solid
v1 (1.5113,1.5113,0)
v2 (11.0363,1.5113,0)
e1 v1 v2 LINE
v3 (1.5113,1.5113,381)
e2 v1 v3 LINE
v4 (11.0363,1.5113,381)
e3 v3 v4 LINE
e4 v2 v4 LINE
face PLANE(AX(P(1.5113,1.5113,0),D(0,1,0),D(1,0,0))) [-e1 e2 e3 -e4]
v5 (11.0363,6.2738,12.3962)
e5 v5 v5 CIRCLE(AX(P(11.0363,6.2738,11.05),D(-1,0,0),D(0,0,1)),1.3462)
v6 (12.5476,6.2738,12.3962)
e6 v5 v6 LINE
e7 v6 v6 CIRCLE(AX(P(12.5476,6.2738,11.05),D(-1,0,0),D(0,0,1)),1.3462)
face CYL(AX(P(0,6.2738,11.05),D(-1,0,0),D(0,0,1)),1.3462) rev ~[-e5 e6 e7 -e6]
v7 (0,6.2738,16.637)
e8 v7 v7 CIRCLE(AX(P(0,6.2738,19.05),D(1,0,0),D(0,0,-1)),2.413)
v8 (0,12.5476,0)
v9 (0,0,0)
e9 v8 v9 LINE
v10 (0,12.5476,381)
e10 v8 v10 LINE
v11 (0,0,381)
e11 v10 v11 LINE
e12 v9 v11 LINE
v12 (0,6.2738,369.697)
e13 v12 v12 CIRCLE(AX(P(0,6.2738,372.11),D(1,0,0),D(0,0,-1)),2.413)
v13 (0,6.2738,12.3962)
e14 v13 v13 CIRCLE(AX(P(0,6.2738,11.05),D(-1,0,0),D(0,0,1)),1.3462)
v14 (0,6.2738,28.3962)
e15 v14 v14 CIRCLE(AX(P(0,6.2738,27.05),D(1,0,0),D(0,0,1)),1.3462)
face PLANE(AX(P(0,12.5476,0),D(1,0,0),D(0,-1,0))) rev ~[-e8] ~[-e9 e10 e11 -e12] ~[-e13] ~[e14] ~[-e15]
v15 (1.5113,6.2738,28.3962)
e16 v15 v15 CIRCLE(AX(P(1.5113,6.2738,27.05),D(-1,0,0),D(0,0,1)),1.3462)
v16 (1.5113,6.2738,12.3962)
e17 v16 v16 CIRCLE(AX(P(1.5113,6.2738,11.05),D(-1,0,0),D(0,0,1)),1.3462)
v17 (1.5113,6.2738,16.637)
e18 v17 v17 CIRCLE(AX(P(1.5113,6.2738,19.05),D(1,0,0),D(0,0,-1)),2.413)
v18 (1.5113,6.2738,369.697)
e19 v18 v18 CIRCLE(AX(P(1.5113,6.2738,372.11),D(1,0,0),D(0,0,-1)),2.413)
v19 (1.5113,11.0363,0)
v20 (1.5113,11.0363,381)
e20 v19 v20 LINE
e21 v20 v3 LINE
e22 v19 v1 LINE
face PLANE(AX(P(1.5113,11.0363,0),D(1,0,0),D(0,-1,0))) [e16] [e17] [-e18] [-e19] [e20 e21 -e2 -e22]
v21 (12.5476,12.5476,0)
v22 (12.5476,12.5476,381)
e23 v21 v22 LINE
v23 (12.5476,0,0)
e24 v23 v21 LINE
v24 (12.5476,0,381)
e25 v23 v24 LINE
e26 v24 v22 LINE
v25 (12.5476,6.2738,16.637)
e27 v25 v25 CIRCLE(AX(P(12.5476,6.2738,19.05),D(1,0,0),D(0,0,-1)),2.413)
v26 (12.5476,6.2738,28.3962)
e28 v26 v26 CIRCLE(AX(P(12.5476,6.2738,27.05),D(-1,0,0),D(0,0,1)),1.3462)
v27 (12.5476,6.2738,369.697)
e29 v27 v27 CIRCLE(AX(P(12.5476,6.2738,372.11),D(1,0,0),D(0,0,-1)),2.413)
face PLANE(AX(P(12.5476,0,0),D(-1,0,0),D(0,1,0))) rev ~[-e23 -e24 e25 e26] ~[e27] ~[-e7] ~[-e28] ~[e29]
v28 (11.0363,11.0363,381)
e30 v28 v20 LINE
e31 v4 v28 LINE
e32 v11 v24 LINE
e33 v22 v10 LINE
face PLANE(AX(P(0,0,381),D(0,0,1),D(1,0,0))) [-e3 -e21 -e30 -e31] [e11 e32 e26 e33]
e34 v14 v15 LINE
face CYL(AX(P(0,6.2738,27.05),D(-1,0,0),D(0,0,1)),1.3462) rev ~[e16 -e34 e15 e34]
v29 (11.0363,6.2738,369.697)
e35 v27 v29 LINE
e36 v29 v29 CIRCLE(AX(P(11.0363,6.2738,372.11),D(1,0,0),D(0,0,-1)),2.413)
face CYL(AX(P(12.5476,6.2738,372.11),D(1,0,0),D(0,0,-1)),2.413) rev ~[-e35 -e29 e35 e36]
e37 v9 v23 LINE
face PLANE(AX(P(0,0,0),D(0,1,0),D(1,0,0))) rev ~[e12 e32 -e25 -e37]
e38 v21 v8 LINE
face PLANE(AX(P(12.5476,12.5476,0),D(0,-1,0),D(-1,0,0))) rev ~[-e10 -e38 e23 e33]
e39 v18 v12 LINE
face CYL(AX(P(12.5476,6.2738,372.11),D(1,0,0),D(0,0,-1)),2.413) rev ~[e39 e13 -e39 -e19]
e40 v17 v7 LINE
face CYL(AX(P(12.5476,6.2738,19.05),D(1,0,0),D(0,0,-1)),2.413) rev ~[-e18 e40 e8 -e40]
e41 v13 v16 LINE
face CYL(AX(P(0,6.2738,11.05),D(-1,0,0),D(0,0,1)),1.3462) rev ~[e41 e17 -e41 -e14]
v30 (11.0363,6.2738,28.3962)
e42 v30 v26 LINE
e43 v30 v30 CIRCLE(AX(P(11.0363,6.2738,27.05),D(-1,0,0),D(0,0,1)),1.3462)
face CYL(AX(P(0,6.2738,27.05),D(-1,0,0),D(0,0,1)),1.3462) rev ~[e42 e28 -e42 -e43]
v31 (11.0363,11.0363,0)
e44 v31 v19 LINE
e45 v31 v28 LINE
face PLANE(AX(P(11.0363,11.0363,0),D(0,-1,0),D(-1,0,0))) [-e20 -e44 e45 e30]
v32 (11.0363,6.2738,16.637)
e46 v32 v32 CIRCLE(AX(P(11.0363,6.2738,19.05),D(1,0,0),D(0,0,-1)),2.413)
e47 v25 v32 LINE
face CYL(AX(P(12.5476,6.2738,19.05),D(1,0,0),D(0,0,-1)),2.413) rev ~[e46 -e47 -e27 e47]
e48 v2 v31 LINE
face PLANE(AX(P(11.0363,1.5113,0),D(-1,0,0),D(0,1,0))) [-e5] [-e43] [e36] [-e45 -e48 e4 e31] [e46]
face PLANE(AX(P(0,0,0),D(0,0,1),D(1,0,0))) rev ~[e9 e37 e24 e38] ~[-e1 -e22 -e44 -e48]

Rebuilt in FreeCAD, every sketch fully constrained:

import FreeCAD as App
import Part
import Sketcher
Q = App.Units.Quantity

doc = App.newDocument("Part")
body = doc.addObject("PartDesign::Body", "Body")

sketch1 = body.newObject("Sketcher::SketchObject", "Sketch")
sketch1.AttachmentSupport = (doc.getObject("XY_Plane"), [""])
sketch1.MapMode = "FlatFace"
sketch1.addGeometry([
    Part.LineSegment(App.Vector(0, 13, 0), App.Vector(0, 0, 0)),
    Part.LineSegment(App.Vector(0, 0, 0), App.Vector(13, 0, 0)),
    Part.LineSegment(App.Vector(13, 0, 0), App.Vector(13, 13, 0)),
    Part.LineSegment(App.Vector(13, 13, 0), App.Vector(0, 13, 0)),
    Part.LineSegment(App.Vector(11, 2, 0), App.Vector(2, 2, 0)),
    Part.LineSegment(App.Vector(2, 2, 0), App.Vector(2, 11, 0)),
    Part.LineSegment(App.Vector(2, 11, 0), App.Vector(11, 11, 0)),
    Part.LineSegment(App.Vector(11, 11, 0), App.Vector(11, 2, 0)),
], False)
sketch1.addConstraint([
    Sketcher.Constraint("Coincident", 0, 2, 1, 1),
    Sketcher.Constraint("Coincident", 1, 2, 2, 1),
    Sketcher.Constraint("Coincident", 2, 2, 3, 1),
    Sketcher.Constraint("Coincident", 3, 2, 0, 1),
    Sketcher.Constraint("Coincident", 4, 2, 5, 1),
    Sketcher.Constraint("Coincident", 5, 2, 6, 1),
    Sketcher.Constraint("Coincident", 6, 2, 7, 1),
    Sketcher.Constraint("Coincident", 7, 2, 4, 1),
    Sketcher.Constraint("Vertical", 0),
    Sketcher.Constraint("Horizontal", 1),
    Sketcher.Constraint("Vertical", 2),
    Sketcher.Constraint("Horizontal", 3),
    Sketcher.Constraint("Horizontal", 4),
    Sketcher.Constraint("Vertical", 5),
    Sketcher.Constraint("Horizontal", 6),
    Sketcher.Constraint("Vertical", 7),
    Sketcher.Constraint("Coincident", 0, 2, -1, 1),
    Sketcher.Constraint("Equal", 3, 0),
    Sketcher.Constraint("Equal", 6, 5),
    Sketcher.Constraint("DistanceX", 1, 1, 1, 2, Q("0.494 in")),
    Sketcher.Constraint("DistanceX", 4, 2, 4, 1, Q("0.375 in")),
    Sketcher.Constraint("DistanceX", -1, 1, 4, 2, Q("0.0595 in")),
    Sketcher.Constraint("DistanceY", -1, 1, 4, 2, Q("0.0595 in")),
])
pad1 = body.newObject("PartDesign::Pad", "Pad")
pad1.Profile = sketch1
pad1.Length = Q("15 in")

sketch2 = body.newObject("Sketcher::SketchObject", "Sketch001")
sketch2.AttachmentSupport = (doc.getObject("YZ_Plane"), [""])
sketch2.MapMode = "FlatFace"
sketch2.AttachmentOffset = App.Placement(App.Vector(0, 0, 0.494 * 25.4), App.Rotation())
sketch2.addGeometry(Part.Circle(App.Vector(6.3, 19.1, 0), App.Vector(0, 0, 1), 2.4), False)
sketch2.addConstraint([
    Sketcher.Constraint("Diameter", 0, Q("0.19 in")),
    Sketcher.Constraint("DistanceY", -1, 1, 0, 3, Q("0.75 in")),
    Sketcher.Constraint("DistanceX", -1, 1, 0, 3, Q("0.247 in")),
])
pocket1 = body.newObject("PartDesign::Pocket", "Pocket")
pocket1.Profile = sketch2
pocket1.Length = Q("16.5 in")

sketch3 = body.newObject("Sketcher::SketchObject", "Sketch002")
sketch3.AttachmentSupport = (doc.getObject("YZ_Plane"), [""])
sketch3.MapMode = "FlatFace"
sketch3.AttachmentOffset = App.Placement(App.Vector(0, 0, 0.494 * 25.4), App.Rotation())
sketch3.addGeometry(Part.Circle(App.Vector(6.3, 372.1, 0), App.Vector(0, 0, 1), 2.4), False)
sketch3.addConstraint([
    Sketcher.Constraint("Diameter", 0, Q("0.19 in")),
    Sketcher.Constraint("DistanceY", -1, 1, 0, 3, Q("14.65 in")),
    Sketcher.Constraint("DistanceX", -1, 1, 0, 3, Q("0.247 in")),
])
pocket2 = body.newObject("PartDesign::Pocket", "Pocket001")
pocket2.Profile = sketch3
pocket2.Length = Q("1 in")

sketch4 = body.newObject("Sketcher::SketchObject", "Sketch003")
sketch4.AttachmentSupport = (doc.getObject("YZ_Plane"), [""])
sketch4.MapMode = "FlatFace"
sketch4.addGeometry([
    Part.Circle(App.Vector(6.3, 11.1, 0), App.Vector(0, 0, 1), 1.3),
    Part.Circle(App.Vector(6.3, 27.1, 0), App.Vector(0, 0, 1), 1.3),
], False)
sketch4.addConstraint([
    Sketcher.Constraint("Equal", 0, 1),
    Sketcher.Constraint("Vertical", 0, 3, 1, 3),
    Sketcher.Constraint("Diameter", 0, Q("0.106 in")),
    Sketcher.Constraint("DistanceY", -1, 1, 0, 3, Q("11.05 mm")),
    Sketcher.Constraint("DistanceY", -1, 1, 1, 3, Q("27.05 mm")),
    Sketcher.Constraint("DistanceX", -1, 1, 0, 3, Q("0.247 in")),
])
pocket3 = body.newObject("PartDesign::Pocket", "Pocket002")
pocket3.Profile = sketch4
pocket3.Length = Q("0.5 in")
pocket3.Reversed = True

doc.recompute()
